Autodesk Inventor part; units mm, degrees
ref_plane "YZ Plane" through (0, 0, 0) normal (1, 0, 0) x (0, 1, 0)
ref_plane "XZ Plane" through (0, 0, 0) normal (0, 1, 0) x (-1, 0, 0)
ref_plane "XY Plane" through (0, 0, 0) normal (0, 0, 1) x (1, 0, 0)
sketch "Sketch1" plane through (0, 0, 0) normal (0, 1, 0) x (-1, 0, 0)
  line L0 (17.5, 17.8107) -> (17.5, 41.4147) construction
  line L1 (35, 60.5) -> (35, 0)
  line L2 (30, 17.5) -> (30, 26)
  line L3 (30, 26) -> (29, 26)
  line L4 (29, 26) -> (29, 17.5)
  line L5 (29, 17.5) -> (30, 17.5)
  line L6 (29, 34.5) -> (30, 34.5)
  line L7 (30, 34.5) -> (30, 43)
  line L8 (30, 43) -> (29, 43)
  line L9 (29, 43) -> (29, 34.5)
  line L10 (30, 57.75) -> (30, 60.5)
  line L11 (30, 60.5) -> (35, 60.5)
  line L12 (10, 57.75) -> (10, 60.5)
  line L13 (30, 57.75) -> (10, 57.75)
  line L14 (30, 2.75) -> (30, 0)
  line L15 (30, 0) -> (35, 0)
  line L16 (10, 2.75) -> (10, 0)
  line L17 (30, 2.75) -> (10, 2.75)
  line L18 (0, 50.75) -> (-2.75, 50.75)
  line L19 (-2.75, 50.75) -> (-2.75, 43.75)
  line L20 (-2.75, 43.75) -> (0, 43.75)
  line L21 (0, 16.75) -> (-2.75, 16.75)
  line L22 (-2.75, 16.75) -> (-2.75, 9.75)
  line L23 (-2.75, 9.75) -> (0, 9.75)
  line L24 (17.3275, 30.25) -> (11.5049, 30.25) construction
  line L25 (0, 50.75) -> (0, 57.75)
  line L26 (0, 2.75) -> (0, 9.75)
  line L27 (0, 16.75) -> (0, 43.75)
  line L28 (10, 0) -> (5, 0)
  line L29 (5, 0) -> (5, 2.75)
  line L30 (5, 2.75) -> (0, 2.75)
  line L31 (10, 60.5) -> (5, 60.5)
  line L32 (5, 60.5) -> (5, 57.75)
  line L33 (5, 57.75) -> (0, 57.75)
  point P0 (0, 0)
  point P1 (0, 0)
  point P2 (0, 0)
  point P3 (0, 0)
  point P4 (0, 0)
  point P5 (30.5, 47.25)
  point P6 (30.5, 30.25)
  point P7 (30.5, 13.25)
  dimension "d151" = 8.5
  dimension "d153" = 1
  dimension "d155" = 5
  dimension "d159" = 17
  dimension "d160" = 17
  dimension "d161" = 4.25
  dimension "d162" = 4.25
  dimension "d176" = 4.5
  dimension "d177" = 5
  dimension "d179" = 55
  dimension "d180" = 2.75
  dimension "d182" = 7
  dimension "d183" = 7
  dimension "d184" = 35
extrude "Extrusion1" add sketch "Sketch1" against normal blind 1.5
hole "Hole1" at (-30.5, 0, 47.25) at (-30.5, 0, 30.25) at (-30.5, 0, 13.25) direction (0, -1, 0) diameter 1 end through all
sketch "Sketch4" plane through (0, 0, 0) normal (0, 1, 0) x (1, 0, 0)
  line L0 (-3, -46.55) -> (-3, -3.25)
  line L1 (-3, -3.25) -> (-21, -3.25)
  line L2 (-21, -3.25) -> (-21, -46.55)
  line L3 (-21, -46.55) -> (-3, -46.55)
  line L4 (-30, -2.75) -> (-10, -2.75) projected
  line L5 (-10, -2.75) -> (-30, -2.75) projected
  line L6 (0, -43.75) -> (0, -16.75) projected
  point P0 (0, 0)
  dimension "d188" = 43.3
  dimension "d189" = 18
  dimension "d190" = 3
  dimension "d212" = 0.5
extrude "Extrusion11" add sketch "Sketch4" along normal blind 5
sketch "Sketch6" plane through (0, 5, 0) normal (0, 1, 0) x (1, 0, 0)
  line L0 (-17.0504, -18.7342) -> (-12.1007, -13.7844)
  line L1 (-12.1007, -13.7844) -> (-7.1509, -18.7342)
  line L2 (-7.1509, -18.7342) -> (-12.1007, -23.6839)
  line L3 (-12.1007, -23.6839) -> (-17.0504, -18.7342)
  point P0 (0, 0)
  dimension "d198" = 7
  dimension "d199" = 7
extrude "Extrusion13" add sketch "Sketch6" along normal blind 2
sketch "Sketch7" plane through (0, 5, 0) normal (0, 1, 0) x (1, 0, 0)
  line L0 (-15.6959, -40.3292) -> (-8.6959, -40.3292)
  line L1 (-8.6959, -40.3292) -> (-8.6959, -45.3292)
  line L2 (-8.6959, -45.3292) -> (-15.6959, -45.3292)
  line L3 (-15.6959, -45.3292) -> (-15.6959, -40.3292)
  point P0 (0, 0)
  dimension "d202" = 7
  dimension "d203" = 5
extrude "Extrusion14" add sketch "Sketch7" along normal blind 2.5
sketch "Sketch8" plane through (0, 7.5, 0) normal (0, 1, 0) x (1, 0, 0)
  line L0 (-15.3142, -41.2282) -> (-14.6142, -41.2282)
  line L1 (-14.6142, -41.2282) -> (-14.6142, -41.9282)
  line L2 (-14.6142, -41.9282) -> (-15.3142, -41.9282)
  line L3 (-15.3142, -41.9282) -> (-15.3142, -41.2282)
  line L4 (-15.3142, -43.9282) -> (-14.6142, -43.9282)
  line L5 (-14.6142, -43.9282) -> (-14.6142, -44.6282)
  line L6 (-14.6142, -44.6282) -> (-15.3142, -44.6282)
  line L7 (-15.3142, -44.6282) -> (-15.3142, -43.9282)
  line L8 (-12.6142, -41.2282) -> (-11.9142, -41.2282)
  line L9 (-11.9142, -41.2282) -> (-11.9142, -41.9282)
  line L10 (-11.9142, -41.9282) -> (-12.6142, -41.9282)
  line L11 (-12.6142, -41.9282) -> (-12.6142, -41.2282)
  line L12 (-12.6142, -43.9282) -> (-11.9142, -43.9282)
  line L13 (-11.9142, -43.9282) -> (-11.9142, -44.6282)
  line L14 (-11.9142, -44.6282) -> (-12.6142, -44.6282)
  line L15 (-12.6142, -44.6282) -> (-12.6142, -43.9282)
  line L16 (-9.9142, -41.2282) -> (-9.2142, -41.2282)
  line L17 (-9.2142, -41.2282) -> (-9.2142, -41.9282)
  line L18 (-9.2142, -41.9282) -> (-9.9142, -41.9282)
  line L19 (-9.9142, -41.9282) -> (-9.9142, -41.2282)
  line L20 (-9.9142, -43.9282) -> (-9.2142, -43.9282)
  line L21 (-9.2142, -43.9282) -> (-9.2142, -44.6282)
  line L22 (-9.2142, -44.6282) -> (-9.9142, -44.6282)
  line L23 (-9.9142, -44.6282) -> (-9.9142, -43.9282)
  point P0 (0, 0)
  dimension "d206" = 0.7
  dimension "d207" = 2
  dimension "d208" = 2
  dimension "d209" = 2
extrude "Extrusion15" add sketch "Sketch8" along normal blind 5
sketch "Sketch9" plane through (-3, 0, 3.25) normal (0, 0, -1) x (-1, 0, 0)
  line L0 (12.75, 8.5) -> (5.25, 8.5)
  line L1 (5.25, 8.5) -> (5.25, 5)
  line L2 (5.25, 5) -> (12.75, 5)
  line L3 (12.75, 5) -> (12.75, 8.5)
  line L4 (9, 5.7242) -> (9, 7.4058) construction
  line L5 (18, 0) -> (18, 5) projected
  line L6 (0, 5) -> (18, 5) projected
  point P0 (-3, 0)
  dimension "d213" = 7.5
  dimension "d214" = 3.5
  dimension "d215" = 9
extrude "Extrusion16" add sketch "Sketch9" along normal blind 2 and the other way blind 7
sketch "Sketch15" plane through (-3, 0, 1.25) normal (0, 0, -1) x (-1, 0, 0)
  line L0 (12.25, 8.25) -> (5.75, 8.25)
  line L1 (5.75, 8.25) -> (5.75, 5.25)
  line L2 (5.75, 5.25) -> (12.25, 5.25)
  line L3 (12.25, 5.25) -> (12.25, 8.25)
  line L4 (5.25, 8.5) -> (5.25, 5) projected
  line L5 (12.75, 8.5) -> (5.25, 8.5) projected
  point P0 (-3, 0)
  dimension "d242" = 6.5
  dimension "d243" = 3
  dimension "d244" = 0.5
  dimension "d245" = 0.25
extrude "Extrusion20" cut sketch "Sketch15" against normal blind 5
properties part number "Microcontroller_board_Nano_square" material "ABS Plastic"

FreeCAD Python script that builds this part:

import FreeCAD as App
import Part
import Sketcher

V = App.Vector


def add_polygon(sketch, points):
    """Adds a closed chain of lines whose ends are joined by coincident constraints."""
    first, n = sketch.GeometryCount, len(points)
    for a, b in zip(points, points[1:] + points[:1]):
        sketch.addGeometry(Part.LineSegment(App.Vector(*a, 0), App.Vector(*b, 0)), False)
    for i in range(n):
        sketch.addConstraint(Sketcher.Constraint("Coincident", first + i, 2, first + (i + 1) % n, 1))

doc = App.newDocument("Part")
body = doc.addObject("PartDesign::Body", "Body")

# Sketch on XZ plane
sketch1 = body.newObject("Sketcher::SketchObject", "Sketch")
sketch1.AttachmentSupport = (doc.getObject("XZ_Plane"), [""])
sketch1.MapMode = "FlatFace"
add_polygon(sketch1, [(-35, 0), (-35, 60.5), (-30, 60.5), (-30, 57.8), (-10, 57.8), (-10, 60.5), (-5, 60.5), (-5, 57.8), (0, 57.8), (0, 50.8), (2.8, 50.8), (2.8, 43.8), (0, 43.8), (0, 16.8), (2.8, 16.8), (2.8, 9.8), (0, 9.8), (0, 2.8), (-5, 2.8), (-5, 0), (-10, 0), (-10, 2.8), (-30, 2.8), (-30, 0)])  # lines 0-23
add_polygon(sketch1, [(-30, 26), (-30, 17.5), (-29, 17.5), (-29, 26)])  # lines 24-27
add_polygon(sketch1, [(-30, 34.5), (-29, 34.5), (-29, 43), (-30, 43)])  # lines 28-31
sketch1.addConstraint([
    Sketcher.Constraint("Vertical", 0),
    Sketcher.Constraint("Horizontal", 1),
    Sketcher.Constraint("Vertical", 2),
    Sketcher.Constraint("Horizontal", 3),
    Sketcher.Constraint("Vertical", 4),
    Sketcher.Constraint("Horizontal", 5),
    Sketcher.Constraint("Vertical", 6),
    Sketcher.Constraint("Horizontal", 7),
    Sketcher.Constraint("Vertical", 8),
    Sketcher.Constraint("Horizontal", 9),
    Sketcher.Constraint("Vertical", 10),
    Sketcher.Constraint("Horizontal", 11),
    Sketcher.Constraint("Vertical", 12),
    Sketcher.Constraint("Horizontal", 13),
    Sketcher.Constraint("Vertical", 14),
    Sketcher.Constraint("Horizontal", 15),
    Sketcher.Constraint("Vertical", 16),
    Sketcher.Constraint("Horizontal", 17),
    Sketcher.Constraint("Vertical", 18),
    Sketcher.Constraint("Horizontal", 19),
    Sketcher.Constraint("Vertical", 20),
    Sketcher.Constraint("Horizontal", 21),
    Sketcher.Constraint("Vertical", 22),
    Sketcher.Constraint("Horizontal", 23),
    Sketcher.Constraint("Vertical", 24),
    Sketcher.Constraint("Horizontal", 25),
    Sketcher.Constraint("Vertical", 26),
    Sketcher.Constraint("Horizontal", 27),
    Sketcher.Constraint("Horizontal", 28),
    Sketcher.Constraint("Vertical", 29),
    Sketcher.Constraint("Horizontal", 30),
    Sketcher.Constraint("Vertical", 31),
    Sketcher.Constraint("PointOnObject", 7, 2, -2),
    Sketcher.Constraint("PointOnObject", 11, 2, -2),
    Sketcher.Constraint("PointOnObject", 15, 2, -2),
    Sketcher.Constraint("PointOnObject", 18, 2, -1),
    Sketcher.Constraint("PointOnObject", 22, 2, -1),
    Sketcher.Constraint("Horizontal", 1, 2, 4, 2),
    Sketcher.Constraint("Horizontal", 3, 2, 6, 2),
    Sketcher.Constraint("Horizontal", 17, 2, 20, 2),
    Sketcher.Constraint("Vertical", 10, 2, 13, 2),
    Sketcher.Constraint("Vertical", 6, 2, 17, 2),
    Sketcher.Constraint("Vertical", 4, 2, 19, 2),
    Sketcher.Constraint("Vertical", 2, 2, 21, 2),
    Sketcher.Constraint("Vertical", 22, 2, 24, 2),
    Sketcher.Constraint("Vertical", 26, 2, 28, 2),
    Sketcher.Constraint("Vertical", 27, 2, 30, 2),
    Sketcher.Constraint("Equal", 1, 5),
    Sketcher.Constraint("Equal", 5, 7),
    Sketcher.Constraint("Equal", 15, 2),
    Sketcher.Constraint("Equal", 8, 10),
    Sketcher.Constraint("Equal", 10, 14),
    Sketcher.Constraint("Equal", 14, 16),
    Sketcher.Constraint("Equal", 6, 18),
    Sketcher.Constraint("Equal", 26, 29),
    Sketcher.Constraint("DistanceX", 1, 1, 1, 2, 5.0),
    Sketcher.Constraint("DistanceX", 25, 1, 25, 2, 1.0),
    Sketcher.Constraint("DistanceY", 8, 2, 8, 1, 7.0),
    Sketcher.Constraint("DistanceY", 24, 2, 24, 1, 8.5),
    Sketcher.Constraint("DistanceX", 0, 2, -1, 1, 35.0),
    Sketcher.Constraint("DistanceY", 25, 2, 28, 2, 17.0),
    Sketcher.Constraint("DistanceX", 9, 1, 9, 2, 2.75),
    Sketcher.Constraint("DistanceY", 12, 2, 12, 1, 27.0),
    Sketcher.Constraint("DistanceY", -1, 1, 26, 2, 26.0),
])
pad1 = body.newObject("PartDesign::Pad", "Pad")
pad1.Profile = sketch1
pad1.Length = 1.5

# Sketch on XZ plane
sketch2 = body.newObject("Sketcher::SketchObject", "Sketch001")
sketch2.AttachmentSupport = (doc.getObject("XZ_Plane"), [""])
sketch2.MapMode = "FlatFace"
sketch2.addGeometry([
    Part.Circle(V(-30.5, 47.2, 0), V(0, 0, 1), 0.5),
    Part.Circle(V(-30.5, 30.2, 0), V(0, 0, 1), 0.5),
    Part.Circle(V(-30.5, 13.2, 0), V(0, 0, 1), 0.5),
], False)
sketch2.addConstraint([
    Sketcher.Constraint("Equal", 0, 1),
    Sketcher.Constraint("Equal", 1, 2),
    Sketcher.Constraint("Vertical", 0, 3, 1, 3),
    Sketcher.Constraint("Vertical", 1, 3, 2, 3),
    Sketcher.Constraint("Diameter", 0, 1.0),
    Sketcher.Constraint("DistanceY", 1, 3, 0, 3, 17.0),
    Sketcher.Constraint("DistanceY", 2, 3, 1, 3, 17.0),
    Sketcher.Constraint("DistanceX", 0, 3, -1, 1, 30.5),
    Sketcher.Constraint("DistanceY", -1, 1, 0, 3, 47.25),
])
doc.recompute()
hole = body.newObject("PartDesign::Hole", "Hole")
hole.Profile = sketch2
hole.ThreadType = "None"
hole.Diameter = 1
hole.DepthType = "ThroughAll"
hole.Reversed = True

# Sketch on XZ plane
sketch3 = body.newObject("Sketcher::SketchObject", "Sketch002")
sketch3.AttachmentSupport = (doc.getObject("XZ_Plane"), [""])
sketch3.MapMode = "FlatFace"
add_polygon(sketch3, [(-21, 47), (-3, 47), (-3, 3), (-21, 3)])  # lines 0-3
sketch3.addConstraint([
    Sketcher.Constraint("Horizontal", 0),
    Sketcher.Constraint("Vertical", 1),
    Sketcher.Constraint("Horizontal", 2),
    Sketcher.Constraint("Vertical", 3),
    Sketcher.Constraint("DistanceX", 0, 1, 0, 2, 18.0),
    Sketcher.Constraint("DistanceY", 1, 2, 1, 1, 43.3),
    Sketcher.Constraint("DistanceX", 0, 2, -1, 1, 3.0),
    Sketcher.Constraint("DistanceY", -1, 1, 0, 2, 46.55),
])
pad2 = body.newObject("PartDesign::Pad", "Pad001")
pad2.Profile = sketch3
pad2.Length = 5
pad2.Reversed = True

# Sketch on XZ plane
sketch4 = body.newObject("Sketcher::SketchObject", "Sketch003")
sketch4.AttachmentSupport = (doc.getObject("XZ_Plane"), [""])
sketch4.MapMode = "FlatFace"
sketch4.AttachmentOffset = App.Placement(V(0, 0, -5), App.Rotation())
add_polygon(sketch4, [(-12, 14), (-17, 19), (-12, 24), (-7, 19)])  # lines 0-3
sketch4.addConstraint([
    Sketcher.Constraint("Perpendicular", 0, 1),
    Sketcher.Constraint("Perpendicular", 1, 2),
    Sketcher.Constraint("Perpendicular", 2, 3),
    Sketcher.Constraint("Horizontal", 0, 2, 2, 2),
    Sketcher.Constraint("Vertical", 1, 2, 3, 2),
    Sketcher.Constraint("Distance", 0, 7.0),
    Sketcher.Constraint("DistanceY", -1, 1, 1, 2, 23.684),
    Sketcher.Constraint("DistanceX", 2, 2, -1, 1, 7.151),
])
pad3 = body.newObject("PartDesign::Pad", "Pad002")
pad3.Profile = sketch4
pad3.Length = 2
pad3.Reversed = True

# Sketch on XZ plane
sketch5 = body.newObject("Sketcher::SketchObject", "Sketch004")
sketch5.AttachmentSupport = (doc.getObject("XZ_Plane"), [""])
sketch5.MapMode = "FlatFace"
sketch5.AttachmentOffset = App.Placement(V(0, 0, -5), App.Rotation())
add_polygon(sketch5, [(-9, 40), (-16, 40), (-16, 45), (-9, 45)])  # lines 0-3
sketch5.addConstraint([
    Sketcher.Constraint("Horizontal", 0),
    Sketcher.Constraint("Vertical", 1),
    Sketcher.Constraint("Horizontal", 2),
    Sketcher.Constraint("Vertical", 3),
    Sketcher.Constraint("DistanceX", 0, 2, 0, 1, 7.0),
    Sketcher.Constraint("DistanceY", 1, 1, 1, 2, 5.0),
    Sketcher.Constraint("DistanceX", 0, 2, -1, 1, 15.696),
    Sketcher.Constraint("DistanceY", -1, 1, 0, 2, 40.3292),
])
pad4 = body.newObject("PartDesign::Pad", "Pad003")
pad4.Profile = sketch5
pad4.Length = 2.5
pad4.Reversed = True

# Sketch on XZ plane
sketch6 = body.newObject("Sketcher::SketchObject", "Sketch005")
sketch6.AttachmentSupport = (doc.getObject("XZ_Plane"), [""])
sketch6.MapMode = "FlatFace"
sketch6.AttachmentOffset = App.Placement(V(0, 0, -7.5), App.Rotation())
add_polygon(sketch6, [(-14.6, 41.2), (-15.3, 41.2), (-15.3, 41.9), (-14.6, 41.9)])  # lines 0-3
add_polygon(sketch6, [(-14.6, 43.9), (-15.3, 43.9), (-15.3, 44.6), (-14.6, 44.6)])  # lines 4-7
add_polygon(sketch6, [(-11.9, 41.2), (-12.6, 41.2), (-12.6, 41.9), (-11.9, 41.9)])  # lines 8-11
add_polygon(sketch6, [(-11.9, 43.9), (-12.6, 43.9), (-12.6, 44.6), (-11.9, 44.6)])  # lines 12-15
add_polygon(sketch6, [(-9.2, 41.2), (-9.9, 41.2), (-9.9, 41.9), (-9.2, 41.9)])  # lines 16-19
add_polygon(sketch6, [(-9.2, 43.9), (-9.9, 43.9), (-9.9, 44.6), (-9.2, 44.6)])  # lines 20-23
sketch6.addConstraint([
    Sketcher.Constraint("Horizontal", 0),
    Sketcher.Constraint("Vertical", 1),
    Sketcher.Constraint("Horizontal", 2),
    Sketcher.Constraint("Vertical", 3),
    Sketcher.Constraint("Horizontal", 4),
    Sketcher.Constraint("Vertical", 5),
    Sketcher.Constraint("Horizontal", 6),
    Sketcher.Constraint("Vertical", 7),
    Sketcher.Constraint("Horizontal", 8),
    Sketcher.Constraint("Vertical", 9),
    Sketcher.Constraint("Horizontal", 10),
    Sketcher.Constraint("Vertical", 11),
    Sketcher.Constraint("Horizontal", 12),
    Sketcher.Constraint("Vertical", 13),
    Sketcher.Constraint("Horizontal", 14),
    Sketcher.Constraint("Vertical", 15),
    Sketcher.Constraint("Horizontal", 16),
    Sketcher.Constraint("Vertical", 17),
    Sketcher.Constraint("Horizontal", 18),
    Sketcher.Constraint("Vertical", 19),
    Sketcher.Constraint("Horizontal", 20),
    Sketcher.Constraint("Vertical", 21),
    Sketcher.Constraint("Horizontal", 22),
    Sketcher.Constraint("Vertical", 23),
    Sketcher.Constraint("Horizontal", 3, 2, 8, 2),
    Sketcher.Constraint("Horizontal", 2, 2, 9, 2),
    Sketcher.Constraint("Horizontal", 7, 2, 12, 2),
    Sketcher.Constraint("Horizontal", 6, 2, 13, 2),
    Sketcher.Constraint("Horizontal", 11, 2, 16, 2),
    Sketcher.Constraint("Horizontal", 10, 2, 17, 2),
    Sketcher.Constraint("Horizontal", 15, 2, 20, 2),
    Sketcher.Constraint("Horizontal", 14, 2, 21, 2),
    Sketcher.Constraint("Vertical", 1, 2, 4, 2),
    Sketcher.Constraint("Vertical", 3, 2, 6, 2),
    Sketcher.Constraint("Vertical", 9, 2, 12, 2),
    Sketcher.Constraint("Vertical", 11, 2, 14, 2),
    Sketcher.Constraint("Vertical", 17, 2, 20, 2),
    Sketcher.Constraint("Vertical", 19, 2, 22, 2),
    Sketcher.Constraint("Equal", 6, 8),
    Sketcher.Constraint("Equal", 14, 16),
    Sketcher.Constraint("Equal", 22, 1),
    Sketcher.Constraint("Equal", 3, 5),
    Sketcher.Constraint("DistanceX", 0, 2, 0, 1, 0.7),
    Sketcher.Constraint("DistanceY", 1, 2, 4, 2, 2.0),
    Sketcher.Constraint("DistanceX", 3, 2, 8, 2, 2.0),
    Sketcher.Constraint("DistanceX", 11, 2, 16, 2, 2.0),
    Sketcher.Constraint("DistanceX", 0, 2, -1, 1, 15.3142),
    Sketcher.Constraint("DistanceY", -1, 1, 0, 2, 41.2282),
])
pad5 = body.newObject("PartDesign::Pad", "Pad004")
pad5.Profile = sketch6
pad5.Length = 5
pad5.Reversed = True

# Sketch on XY plane
sketch7 = body.newObject("Sketcher::SketchObject", "Sketch006")
sketch7.AttachmentSupport = (doc.getObject("XY_Plane"), [""])
sketch7.MapMode = "FlatFace"
sketch7.AttachmentOffset = App.Placement(V(0, 0, 3.25), App.Rotation())
add_polygon(sketch7, [(-15.8, 5), (-15.8, 8.5), (-8.2, 8.5), (-8.2, 5)])  # lines 0-3
sketch7.addConstraint([
    Sketcher.Constraint("Vertical", 0),
    Sketcher.Constraint("Horizontal", 1),
    Sketcher.Constraint("Vertical", 2),
    Sketcher.Constraint("Horizontal", 3),
    Sketcher.Constraint("DistanceX", 1, 1, 1, 2, 7.5),
    Sketcher.Constraint("DistanceY", 0, 1, 0, 2, 3.5),
    Sketcher.Constraint("DistanceY", -1, 1, 2, 2, 5.0),
    Sketcher.Constraint("DistanceX", 0, 2, -1, 1, 15.75),
])
pad6 = body.newObject("PartDesign::Pad", "Pad005")
pad6.Profile = sketch7
pad6.Type = "TwoLengths"
pad6.Length = 2
pad6.Length2 = 7
pad6.Reversed = True

# Sketch on XY plane
sketch8 = body.newObject("Sketcher::SketchObject", "Sketch007")
sketch8.AttachmentSupport = (doc.getObject("XY_Plane"), [""])
sketch8.MapMode = "FlatFace"
sketch8.AttachmentOffset = App.Placement(V(0, 0, 1.25), App.Rotation())
add_polygon(sketch8, [(-15.2, 5.2), (-15.2, 8.2), (-8.8, 8.2), (-8.8, 5.2)])  # lines 0-3
sketch8.addConstraint([
    Sketcher.Constraint("Vertical", 0),
    Sketcher.Constraint("Horizontal", 1),
    Sketcher.Constraint("Vertical", 2),
    Sketcher.Constraint("Horizontal", 3),
    Sketcher.Constraint("DistanceY", 0, 1, 0, 2, 3.0),
    Sketcher.Constraint("DistanceX", 1, 1, 1, 2, 6.5),
    Sketcher.Constraint("DistanceX", 0, 2, -1, 1, 15.25),
    Sketcher.Constraint("DistanceY", -1, 1, 0, 2, 8.25),
])
pocket1 = body.newObject("PartDesign::Pocket", "Pocket")
pocket1.Profile = sketch8
pocket1.Length = 5
pocket1.Reversed = True

doc.recompute()
